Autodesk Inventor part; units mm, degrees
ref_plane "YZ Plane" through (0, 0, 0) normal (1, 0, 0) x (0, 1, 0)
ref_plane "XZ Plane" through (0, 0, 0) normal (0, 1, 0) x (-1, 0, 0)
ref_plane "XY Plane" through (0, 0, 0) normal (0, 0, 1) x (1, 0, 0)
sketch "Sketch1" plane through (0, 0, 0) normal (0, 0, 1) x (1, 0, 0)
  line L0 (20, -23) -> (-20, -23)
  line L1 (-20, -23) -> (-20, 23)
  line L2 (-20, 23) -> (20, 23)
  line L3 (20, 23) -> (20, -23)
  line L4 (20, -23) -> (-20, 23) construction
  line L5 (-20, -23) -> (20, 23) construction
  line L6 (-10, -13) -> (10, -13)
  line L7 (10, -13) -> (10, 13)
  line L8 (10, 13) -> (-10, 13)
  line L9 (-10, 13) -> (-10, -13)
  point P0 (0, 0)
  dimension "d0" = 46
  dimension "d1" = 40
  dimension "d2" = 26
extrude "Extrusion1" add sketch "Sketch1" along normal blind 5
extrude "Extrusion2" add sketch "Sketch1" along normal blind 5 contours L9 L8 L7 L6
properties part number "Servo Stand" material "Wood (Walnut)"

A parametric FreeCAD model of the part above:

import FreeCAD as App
import Part
import Sketcher
Q = App.Units.Quantity


def add_polygon(sketch, points):
    """Adds a closed chain of lines whose ends are joined by coincident constraints."""
    first, n = sketch.GeometryCount, len(points)
    for a, b in zip(points, points[1:] + points[:1]):
        sketch.addGeometry(Part.LineSegment(App.Vector(*a, 0), App.Vector(*b, 0)), False)
    for i in range(n):
        sketch.addConstraint(Sketcher.Constraint("Coincident", first + i, 2, first + (i + 1) % n, 1))

doc = App.newDocument("Part")
body = doc.addObject("PartDesign::Body", "Body")

# Sketch on XY plane
sketch1 = body.newObject("Sketcher::SketchObject", "Sketch")
sketch1.AttachmentSupport = (doc.getObject("XY_Plane"), [""])
sketch1.MapMode = "FlatFace"
add_polygon(sketch1, [(-20, -23), (20, -23), (20, 23), (-20, 23)])  # lines 0-3
add_polygon(sketch1, [(10, -13), (-10, -13), (-10, 13), (10, 13)])  # lines 4-7
sketch1.addConstraint([
    Sketcher.Constraint("Horizontal", 0),
    Sketcher.Constraint("Vertical", 1),
    Sketcher.Constraint("Horizontal", 2),
    Sketcher.Constraint("Vertical", 3),
    Sketcher.Constraint("Horizontal", 4),
    Sketcher.Constraint("Vertical", 5),
    Sketcher.Constraint("Horizontal", 6),
    Sketcher.Constraint("Vertical", 7),
    Sketcher.Constraint("Symmetric", 0, 2, 2, 2, -1, 1),
    Sketcher.Constraint("Symmetric", 4, 2, 6, 2, -1, 1),
    Sketcher.Constraint("DistanceX", 0, 1, 0, 2, Q("40 mm")),
    Sketcher.Constraint("DistanceY", 1, 1, 1, 2, Q("46 mm")),
    Sketcher.Constraint("DistanceY", 5, 1, 5, 2, Q("26 mm")),
    Sketcher.Constraint("DistanceX", 4, 2, 4, 1, Q("20 mm")),
])
pad1 = body.newObject("PartDesign::Pad", "Pad")
pad1.Profile = sketch1
pad1.Length = 5

# Sketch on XY plane
sketch2 = body.newObject("Sketcher::SketchObject", "Sketch001")
sketch2.AttachmentSupport = (doc.getObject("XY_Plane"), [""])
sketch2.MapMode = "FlatFace"
add_polygon(sketch2, [(-10, 13), (-10, -13), (10, -13), (10, 13)])  # lines 0-3
sketch2.addConstraint([
    Sketcher.Constraint("Vertical", 0),
    Sketcher.Constraint("Horizontal", 1),
    Sketcher.Constraint("Vertical", 2),
    Sketcher.Constraint("Horizontal", 3),
    Sketcher.Constraint("Symmetric", 0, 2, 2, 2, -1, 1),
    Sketcher.Constraint("DistanceY", 0, 2, 0, 1, Q("26 mm")),
    Sketcher.Constraint("DistanceX", 1, 1, 1, 2, Q("20 mm")),
])
pad2 = body.newObject("PartDesign::Pad", "Pad001")
pad2.Profile = sketch2
pad2.Length = 5

doc.recompute()
